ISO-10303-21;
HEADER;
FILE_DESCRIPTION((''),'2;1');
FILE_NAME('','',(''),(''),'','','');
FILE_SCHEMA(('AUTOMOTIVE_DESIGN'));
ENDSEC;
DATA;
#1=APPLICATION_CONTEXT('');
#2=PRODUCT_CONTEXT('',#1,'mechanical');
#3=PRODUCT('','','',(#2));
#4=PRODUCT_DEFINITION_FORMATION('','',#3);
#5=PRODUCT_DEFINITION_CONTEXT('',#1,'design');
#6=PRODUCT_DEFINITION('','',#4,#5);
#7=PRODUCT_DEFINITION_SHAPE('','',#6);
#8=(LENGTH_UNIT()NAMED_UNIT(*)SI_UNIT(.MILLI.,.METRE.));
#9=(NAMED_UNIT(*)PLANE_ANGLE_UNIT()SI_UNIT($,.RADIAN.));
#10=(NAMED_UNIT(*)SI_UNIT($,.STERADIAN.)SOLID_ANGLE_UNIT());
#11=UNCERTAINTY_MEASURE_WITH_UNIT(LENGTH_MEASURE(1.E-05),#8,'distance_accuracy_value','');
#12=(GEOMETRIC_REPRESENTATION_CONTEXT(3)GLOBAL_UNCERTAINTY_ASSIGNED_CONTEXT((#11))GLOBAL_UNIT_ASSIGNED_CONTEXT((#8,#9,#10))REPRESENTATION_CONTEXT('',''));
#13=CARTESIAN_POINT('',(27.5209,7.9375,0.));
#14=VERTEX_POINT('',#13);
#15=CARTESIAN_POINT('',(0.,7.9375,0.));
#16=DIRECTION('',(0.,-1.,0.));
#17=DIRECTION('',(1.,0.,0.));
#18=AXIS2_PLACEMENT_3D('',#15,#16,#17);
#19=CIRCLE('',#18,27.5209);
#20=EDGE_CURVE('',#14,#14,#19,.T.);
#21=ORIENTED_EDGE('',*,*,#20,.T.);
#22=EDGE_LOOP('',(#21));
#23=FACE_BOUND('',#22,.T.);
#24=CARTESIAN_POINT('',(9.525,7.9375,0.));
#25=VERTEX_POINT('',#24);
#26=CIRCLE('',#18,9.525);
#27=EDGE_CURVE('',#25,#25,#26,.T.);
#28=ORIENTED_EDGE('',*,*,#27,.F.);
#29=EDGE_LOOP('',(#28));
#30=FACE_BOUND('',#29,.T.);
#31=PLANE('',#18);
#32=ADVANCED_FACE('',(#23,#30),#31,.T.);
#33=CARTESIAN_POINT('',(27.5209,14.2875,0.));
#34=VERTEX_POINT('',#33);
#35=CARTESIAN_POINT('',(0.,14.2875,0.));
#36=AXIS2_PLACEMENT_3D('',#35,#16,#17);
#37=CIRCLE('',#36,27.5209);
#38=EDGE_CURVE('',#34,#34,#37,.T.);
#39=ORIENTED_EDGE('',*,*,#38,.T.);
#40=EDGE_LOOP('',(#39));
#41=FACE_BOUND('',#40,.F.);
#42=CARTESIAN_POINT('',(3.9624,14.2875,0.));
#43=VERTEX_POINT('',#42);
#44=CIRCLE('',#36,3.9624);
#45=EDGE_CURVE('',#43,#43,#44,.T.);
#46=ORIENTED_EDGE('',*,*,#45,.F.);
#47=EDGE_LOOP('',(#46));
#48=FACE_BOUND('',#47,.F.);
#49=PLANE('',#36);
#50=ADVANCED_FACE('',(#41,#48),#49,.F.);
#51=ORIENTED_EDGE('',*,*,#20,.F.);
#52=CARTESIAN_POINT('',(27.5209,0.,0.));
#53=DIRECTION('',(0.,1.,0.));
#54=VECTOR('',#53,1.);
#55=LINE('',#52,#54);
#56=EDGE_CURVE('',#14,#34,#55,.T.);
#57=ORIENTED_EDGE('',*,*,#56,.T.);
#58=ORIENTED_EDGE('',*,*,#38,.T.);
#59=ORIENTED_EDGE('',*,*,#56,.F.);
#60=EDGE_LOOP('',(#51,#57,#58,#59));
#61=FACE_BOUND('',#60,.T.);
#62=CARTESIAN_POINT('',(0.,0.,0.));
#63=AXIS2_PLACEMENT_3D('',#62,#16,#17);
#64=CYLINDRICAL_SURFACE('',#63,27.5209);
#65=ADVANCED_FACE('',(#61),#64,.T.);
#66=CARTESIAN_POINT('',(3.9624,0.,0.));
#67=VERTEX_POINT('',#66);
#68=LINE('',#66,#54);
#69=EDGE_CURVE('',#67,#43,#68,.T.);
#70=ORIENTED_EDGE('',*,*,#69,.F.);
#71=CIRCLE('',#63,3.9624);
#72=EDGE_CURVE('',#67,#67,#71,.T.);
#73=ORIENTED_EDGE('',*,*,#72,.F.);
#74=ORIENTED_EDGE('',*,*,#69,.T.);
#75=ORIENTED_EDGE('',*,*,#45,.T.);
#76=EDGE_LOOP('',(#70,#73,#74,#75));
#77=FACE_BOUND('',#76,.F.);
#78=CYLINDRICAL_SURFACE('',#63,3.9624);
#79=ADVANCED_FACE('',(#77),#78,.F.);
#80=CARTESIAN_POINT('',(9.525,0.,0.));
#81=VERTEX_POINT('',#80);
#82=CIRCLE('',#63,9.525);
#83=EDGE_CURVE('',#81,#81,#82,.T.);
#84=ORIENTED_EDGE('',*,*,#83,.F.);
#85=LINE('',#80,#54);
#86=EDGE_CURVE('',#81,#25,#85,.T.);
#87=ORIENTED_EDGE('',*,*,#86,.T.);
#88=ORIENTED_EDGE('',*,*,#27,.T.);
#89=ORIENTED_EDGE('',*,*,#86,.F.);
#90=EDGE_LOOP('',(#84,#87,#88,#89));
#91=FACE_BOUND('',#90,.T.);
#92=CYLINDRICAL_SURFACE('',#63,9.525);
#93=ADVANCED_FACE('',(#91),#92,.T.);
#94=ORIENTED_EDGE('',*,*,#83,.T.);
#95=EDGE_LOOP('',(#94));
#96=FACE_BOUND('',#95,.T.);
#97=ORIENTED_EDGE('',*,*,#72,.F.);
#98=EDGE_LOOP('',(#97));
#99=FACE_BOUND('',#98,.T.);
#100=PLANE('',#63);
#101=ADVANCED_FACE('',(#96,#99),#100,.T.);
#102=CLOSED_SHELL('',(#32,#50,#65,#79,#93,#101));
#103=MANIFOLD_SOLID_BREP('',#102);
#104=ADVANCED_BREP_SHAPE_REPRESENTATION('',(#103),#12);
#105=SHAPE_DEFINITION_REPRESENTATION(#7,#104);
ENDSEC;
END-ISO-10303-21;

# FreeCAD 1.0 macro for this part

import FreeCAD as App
import Part
import Sketcher
from FreeCAD import Vector
Q = App.Units.Quantity

doc = App.newDocument("Part")
body = doc.addObject("PartDesign::Body", "Body")

sketch1 = doc.addObject("Sketcher::SketchObject", "Sketch")
body.addObject(sketch1)
sketch1.AttachmentSupport = (doc.XZ_Plane, [""])
sketch1.MapMode = "FlatFace"
sketch1.addGeometry(Part.Circle(Vector(0, 0, 0), Vector(0, 0, 1), 27.5209), False)
sketch1.addConstraint([
    Sketcher.Constraint("Coincident", 0, 3, -1, 1),
    Sketcher.Constraint("Diameter", 0, Q("2.167 in")),
])
pad1 = doc.addObject("PartDesign::Pad", "Pad")
body.addObject(pad1)
pad1.Profile = sketch1
pad1.Length = Q("0.5625 in")
pad1.Reversed = True

sketch2 = doc.addObject("Sketcher::SketchObject", "Sketch001")
body.addObject(sketch2)
sketch2.AttachmentSupport = (doc.XZ_Plane, [""])
sketch2.MapMode = "FlatFace"
sketch2.addGeometry([
    Part.Circle(Vector(0, 0, 0), Vector(0, 0, 1), 27.5209),
    Part.Circle(Vector(0, 0, 0), Vector(0, 0, 1), 9.525),
], False)
sketch2.addConstraint([
    Sketcher.Constraint("Coincident", 0, 3, -1, 1),
    Sketcher.Constraint("Coincident", 1, 3, -1, 1),
    Sketcher.Constraint("Diameter", 1, Q("0.75 in")),
    Sketcher.Constraint("Diameter", 0, Q("2.167 in")),
])
pocket1 = doc.addObject("PartDesign::Pocket", "Pocket")
body.addObject(pocket1)
pocket1.Profile = sketch2
pocket1.Length = Q("0.3125 in")

sketch3 = doc.addObject("Sketcher::SketchObject", "Sketch002")
body.addObject(sketch3)
sketch3.AttachmentSupport = (doc.XZ_Plane, [""])
sketch3.MapMode = "FlatFace"
sketch3.addGeometry(Part.Circle(Vector(0, 0, 0), Vector(0, 0, 1), 3.9624), False)
sketch3.addConstraint([
    Sketcher.Constraint("Coincident", 0, 3, -1, 1),
    Sketcher.Constraint("Diameter", 0, Q("0.312 in")),
])
pocket2 = doc.addObject("PartDesign::Pocket", "Pocket001")
body.addObject(pocket2)
pocket2.Profile = sketch3
pocket2.Type = "ThroughAll"

doc.recompute()
